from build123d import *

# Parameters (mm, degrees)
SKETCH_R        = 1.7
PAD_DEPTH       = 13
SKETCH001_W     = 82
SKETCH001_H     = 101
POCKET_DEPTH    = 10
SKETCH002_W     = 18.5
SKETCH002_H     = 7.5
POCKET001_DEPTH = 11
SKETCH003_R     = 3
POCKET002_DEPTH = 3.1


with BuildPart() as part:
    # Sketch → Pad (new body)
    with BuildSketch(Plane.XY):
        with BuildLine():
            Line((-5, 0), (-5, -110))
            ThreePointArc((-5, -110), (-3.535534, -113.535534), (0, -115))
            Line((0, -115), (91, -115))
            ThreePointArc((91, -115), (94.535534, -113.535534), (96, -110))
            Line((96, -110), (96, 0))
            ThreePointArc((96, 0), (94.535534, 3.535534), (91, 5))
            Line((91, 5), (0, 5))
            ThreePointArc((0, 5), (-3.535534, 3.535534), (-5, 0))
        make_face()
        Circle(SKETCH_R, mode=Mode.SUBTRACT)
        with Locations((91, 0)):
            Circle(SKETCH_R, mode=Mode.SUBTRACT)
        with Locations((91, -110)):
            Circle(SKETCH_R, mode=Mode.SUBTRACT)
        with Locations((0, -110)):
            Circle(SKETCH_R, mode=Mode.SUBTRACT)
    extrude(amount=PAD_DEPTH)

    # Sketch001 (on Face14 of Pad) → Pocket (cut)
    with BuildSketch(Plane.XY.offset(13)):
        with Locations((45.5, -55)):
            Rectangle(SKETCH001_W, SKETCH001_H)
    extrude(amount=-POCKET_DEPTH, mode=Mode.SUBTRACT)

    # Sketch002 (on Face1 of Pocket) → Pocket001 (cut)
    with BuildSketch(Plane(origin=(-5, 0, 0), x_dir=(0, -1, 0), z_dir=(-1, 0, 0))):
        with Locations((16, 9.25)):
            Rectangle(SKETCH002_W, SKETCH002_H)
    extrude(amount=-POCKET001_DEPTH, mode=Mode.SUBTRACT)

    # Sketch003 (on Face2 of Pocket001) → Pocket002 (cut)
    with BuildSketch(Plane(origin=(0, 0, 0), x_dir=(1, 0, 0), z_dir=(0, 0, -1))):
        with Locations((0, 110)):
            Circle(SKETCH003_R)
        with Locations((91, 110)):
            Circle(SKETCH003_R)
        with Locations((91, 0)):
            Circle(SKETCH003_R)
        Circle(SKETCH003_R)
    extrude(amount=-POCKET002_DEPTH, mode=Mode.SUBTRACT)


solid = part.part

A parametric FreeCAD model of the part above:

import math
import FreeCAD as App
import Part
import Sketcher
Q = App.Units.Quantity

doc = App.newDocument("Part")
body = doc.addObject("PartDesign::Body", "Body")

# Sketch on XY plane
sketch1 = body.newObject("Sketcher::SketchObject", "Sketch")
sketch1.AttachmentSupport = (doc.getObject("XY_Plane"), [""])
sketch1.MapMode = "FlatFace"
sketch1.addGeometry([
    Part.LineSegment(App.Vector(-5, 0, 0), App.Vector(-5, -110, 0)),  # 0
    Part.ArcOfCircle(Part.Circle(App.Vector(0, -110, 0), App.Vector(0, 0, 1), 5), math.radians(180), math.radians(270)),  # 1
    Part.LineSegment(App.Vector(0, -115, 0), App.Vector(91, -115, 0)),  # 2
    Part.ArcOfCircle(Part.Circle(App.Vector(91, -110, 0), App.Vector(0, 0, 1), 5), math.radians(-90), math.radians(0)),  # 3
    Part.LineSegment(App.Vector(96, -110, 0), App.Vector(96, 0, 0)),  # 4
    Part.ArcOfCircle(Part.Circle(App.Vector(91, 0, 0), App.Vector(0, 0, 1), 5), math.radians(0), math.radians(90)),  # 5
    Part.LineSegment(App.Vector(91, 5, 0), App.Vector(0, 5, 0)),  # 6
    Part.ArcOfCircle(Part.Circle(App.Vector(0, 0, 0), App.Vector(0, 0, 1), 5), math.radians(90), math.radians(180)),  # 7
    Part.Circle(App.Vector(0, -110, 0), App.Vector(0, 0, 1), 1.7),  # 8
    Part.Circle(App.Vector(91, -110, 0), App.Vector(0, 0, 1), 1.7),  # 9
    Part.Circle(App.Vector(0, 0, 0), App.Vector(0, 0, 1), 1.7),  # 10
    Part.Circle(App.Vector(91, 0, 0), App.Vector(0, 0, 1), 1.7),  # 11
], False)
sketch1.addConstraint([
    Sketcher.Constraint("Tangent", 0, 2, 1, 1),
    Sketcher.Constraint("Tangent", 1, 2, 2, 1),
    Sketcher.Constraint("Tangent", 2, 2, 3, 1),
    Sketcher.Constraint("Tangent", 3, 2, 4, 1),
    Sketcher.Constraint("Tangent", 4, 2, 5, 1),
    Sketcher.Constraint("Tangent", 5, 2, 6, 1),
    Sketcher.Constraint("Tangent", 6, 2, 7, 1),
    Sketcher.Constraint("Tangent", 7, 2, 0, 1),
    Sketcher.Constraint("Vertical", 0),
    Sketcher.Constraint("Horizontal", 2),
    Sketcher.Constraint("Vertical", 4),
    Sketcher.Constraint("Horizontal", 6),
    Sketcher.Constraint("Coincident", 7, 3, -1, 1),
    Sketcher.Constraint("Coincident", 10, 3, -1, 1),
    Sketcher.Constraint("Coincident", 8, 3, 1, 3),
    Sketcher.Constraint("Coincident", 9, 3, 3, 3),
    Sketcher.Constraint("Coincident", 11, 3, 5, 3),
    Sketcher.Constraint("Equal", 1, 3),
    Sketcher.Constraint("Equal", 3, 5),
    Sketcher.Constraint("Equal", 5, 7),
    Sketcher.Constraint("Equal", 8, 9),
    Sketcher.Constraint("Equal", 9, 10),
    Sketcher.Constraint("Equal", 10, 11),
    Sketcher.Constraint("Radius", 1, Q("5 mm")),
    Sketcher.Constraint("Diameter", 8, Q("3.4 mm")),
    Sketcher.Constraint("DistanceX", 2, 1, 2, 2, Q("91 mm")),
    Sketcher.Constraint("DistanceY", 0, 2, 0, 1, Q("110 mm")),
])
pad1 = body.newObject("PartDesign::Pad", "Pad")
pad1.Profile = sketch1
pad1.Length = 13

# Sketch on XY plane
sketch2 = body.newObject("Sketcher::SketchObject", "Sketch001")
sketch2.AttachmentSupport = (doc.getObject("XY_Plane"), [""])
sketch2.MapMode = "FlatFace"
sketch2.AttachmentOffset = App.Placement(App.Vector(0, 0, 13), App.Rotation())
sketch2.addGeometry([
    Part.LineSegment(App.Vector(4, -4, 0), App.Vector(4, -106, 0)),
    Part.LineSegment(App.Vector(4, -106, 0), App.Vector(86, -106, 0)),
    Part.LineSegment(App.Vector(86, -106, 0), App.Vector(86, -4, 0)),
    Part.LineSegment(App.Vector(86, -4, 0), App.Vector(4, -4, 0)),
], False)
sketch2.addConstraint([
    Sketcher.Constraint("Coincident", 0, 2, 1, 1),
    Sketcher.Constraint("Coincident", 1, 2, 2, 1),
    Sketcher.Constraint("Coincident", 2, 2, 3, 1),
    Sketcher.Constraint("Coincident", 3, 2, 0, 1),
    Sketcher.Constraint("Vertical", 0),
    Sketcher.Constraint("Horizontal", 1),
    Sketcher.Constraint("Vertical", 2),
    Sketcher.Constraint("Horizontal", 3),
    Sketcher.Constraint("DistanceX", 1, 1, 1, 2, Q("82 mm")),
    Sketcher.Constraint("DistanceY", 0, 2, 0, 1, Q("101 mm")),
    Sketcher.Constraint("DistanceX", -1, 1, 0, 2, Q("4.5 mm")),
    Sketcher.Constraint("DistanceY", 0, 2, -1, 1, Q("105.5 mm")),
])
pocket1 = body.newObject("PartDesign::Pocket", "Pocket")
pocket1.Profile = sketch2
pocket1.Length = 10

# Sketch on YZ plane
sketch3 = body.newObject("Sketcher::SketchObject", "Sketch002")
sketch3.AttachmentSupport = (doc.getObject("YZ_Plane"), [""])
sketch3.MapMode = "FlatFace"
sketch3.AttachmentOffset = App.Placement(App.Vector(0, 0, -5), App.Rotation())
sketch3.addGeometry([
    Part.LineSegment(App.Vector(-7, 13, 0), App.Vector(-7, 6, 0)),
    Part.LineSegment(App.Vector(-7, 6, 0), App.Vector(-25, 6, 0)),
    Part.LineSegment(App.Vector(-25, 6, 0), App.Vector(-25, 13, 0)),
    Part.LineSegment(App.Vector(-25, 13, 0), App.Vector(-7, 13, 0)),
], False)
sketch3.addConstraint([
    Sketcher.Constraint("Coincident", 0, 2, 1, 1),
    Sketcher.Constraint("Coincident", 1, 2, 2, 1),
    Sketcher.Constraint("Coincident", 2, 2, 3, 1),
    Sketcher.Constraint("Coincident", 3, 2, 0, 1),
    Sketcher.Constraint("Vertical", 0),
    Sketcher.Constraint("Horizontal", 1),
    Sketcher.Constraint("Vertical", 2),
    Sketcher.Constraint("Horizontal", 3),
    Sketcher.Constraint("DistanceX", 1, 2, 1, 1, Q("18.5 mm")),
    Sketcher.Constraint("DistanceY", 0, 2, 0, 1, Q("7.5 mm")),
    Sketcher.Constraint("DistanceY", -1, 1, 2, 2, Q("13 mm")),
    Sketcher.Constraint("DistanceX", 0, 2, -1, 1, Q("6.75 mm")),
])
pocket2 = body.newObject("PartDesign::Pocket", "Pocket001")
pocket2.Profile = sketch3
pocket2.Length = 11
pocket2.Reversed = True

# Sketch on XY plane
sketch4 = body.newObject("Sketcher::SketchObject", "Sketch003")
sketch4.AttachmentSupport = (doc.getObject("XY_Plane"), [""])
sketch4.MapMode = "FlatFace"
sketch4.addGeometry([
    Part.Circle(App.Vector(0, -110, 0), App.Vector(0, 0, 1), 3),
    Part.Circle(App.Vector(91, -110, 0), App.Vector(0, 0, 1), 3),
    Part.Circle(App.Vector(91, 0, 0), App.Vector(0, 0, 1), 3),
    Part.Circle(App.Vector(0, 0, 0), App.Vector(0, 0, 1), 3),
], False)
sketch4.addConstraint([
    Sketcher.Constraint("Coincident", 3, 3, -1, 1),
    Sketcher.Constraint("Equal", 0, 1),
    Sketcher.Constraint("Equal", 1, 2),
    Sketcher.Constraint("Equal", 2, 3),
    Sketcher.Constraint("PointOnObject", 0, 3, -2),
    Sketcher.Constraint("PointOnObject", 2, 3, -1),
    Sketcher.Constraint("Horizontal", 0, 3, 1, 3),
    Sketcher.Constraint("Vertical", 1, 3, 2, 3),
    Sketcher.Constraint("Diameter", 0, Q("6 mm")),
    Sketcher.Constraint("DistanceY", 0, 3, -1, 1, Q("110 mm")),
    Sketcher.Constraint("DistanceX", -1, 1, 1, 3, Q("91 mm")),
])
pocket3 = body.newObject("PartDesign::Pocket", "Pocket002")
pocket3.Profile = sketch4
pocket3.Length = 3.1
pocket3.Reversed = True

doc.recompute()
